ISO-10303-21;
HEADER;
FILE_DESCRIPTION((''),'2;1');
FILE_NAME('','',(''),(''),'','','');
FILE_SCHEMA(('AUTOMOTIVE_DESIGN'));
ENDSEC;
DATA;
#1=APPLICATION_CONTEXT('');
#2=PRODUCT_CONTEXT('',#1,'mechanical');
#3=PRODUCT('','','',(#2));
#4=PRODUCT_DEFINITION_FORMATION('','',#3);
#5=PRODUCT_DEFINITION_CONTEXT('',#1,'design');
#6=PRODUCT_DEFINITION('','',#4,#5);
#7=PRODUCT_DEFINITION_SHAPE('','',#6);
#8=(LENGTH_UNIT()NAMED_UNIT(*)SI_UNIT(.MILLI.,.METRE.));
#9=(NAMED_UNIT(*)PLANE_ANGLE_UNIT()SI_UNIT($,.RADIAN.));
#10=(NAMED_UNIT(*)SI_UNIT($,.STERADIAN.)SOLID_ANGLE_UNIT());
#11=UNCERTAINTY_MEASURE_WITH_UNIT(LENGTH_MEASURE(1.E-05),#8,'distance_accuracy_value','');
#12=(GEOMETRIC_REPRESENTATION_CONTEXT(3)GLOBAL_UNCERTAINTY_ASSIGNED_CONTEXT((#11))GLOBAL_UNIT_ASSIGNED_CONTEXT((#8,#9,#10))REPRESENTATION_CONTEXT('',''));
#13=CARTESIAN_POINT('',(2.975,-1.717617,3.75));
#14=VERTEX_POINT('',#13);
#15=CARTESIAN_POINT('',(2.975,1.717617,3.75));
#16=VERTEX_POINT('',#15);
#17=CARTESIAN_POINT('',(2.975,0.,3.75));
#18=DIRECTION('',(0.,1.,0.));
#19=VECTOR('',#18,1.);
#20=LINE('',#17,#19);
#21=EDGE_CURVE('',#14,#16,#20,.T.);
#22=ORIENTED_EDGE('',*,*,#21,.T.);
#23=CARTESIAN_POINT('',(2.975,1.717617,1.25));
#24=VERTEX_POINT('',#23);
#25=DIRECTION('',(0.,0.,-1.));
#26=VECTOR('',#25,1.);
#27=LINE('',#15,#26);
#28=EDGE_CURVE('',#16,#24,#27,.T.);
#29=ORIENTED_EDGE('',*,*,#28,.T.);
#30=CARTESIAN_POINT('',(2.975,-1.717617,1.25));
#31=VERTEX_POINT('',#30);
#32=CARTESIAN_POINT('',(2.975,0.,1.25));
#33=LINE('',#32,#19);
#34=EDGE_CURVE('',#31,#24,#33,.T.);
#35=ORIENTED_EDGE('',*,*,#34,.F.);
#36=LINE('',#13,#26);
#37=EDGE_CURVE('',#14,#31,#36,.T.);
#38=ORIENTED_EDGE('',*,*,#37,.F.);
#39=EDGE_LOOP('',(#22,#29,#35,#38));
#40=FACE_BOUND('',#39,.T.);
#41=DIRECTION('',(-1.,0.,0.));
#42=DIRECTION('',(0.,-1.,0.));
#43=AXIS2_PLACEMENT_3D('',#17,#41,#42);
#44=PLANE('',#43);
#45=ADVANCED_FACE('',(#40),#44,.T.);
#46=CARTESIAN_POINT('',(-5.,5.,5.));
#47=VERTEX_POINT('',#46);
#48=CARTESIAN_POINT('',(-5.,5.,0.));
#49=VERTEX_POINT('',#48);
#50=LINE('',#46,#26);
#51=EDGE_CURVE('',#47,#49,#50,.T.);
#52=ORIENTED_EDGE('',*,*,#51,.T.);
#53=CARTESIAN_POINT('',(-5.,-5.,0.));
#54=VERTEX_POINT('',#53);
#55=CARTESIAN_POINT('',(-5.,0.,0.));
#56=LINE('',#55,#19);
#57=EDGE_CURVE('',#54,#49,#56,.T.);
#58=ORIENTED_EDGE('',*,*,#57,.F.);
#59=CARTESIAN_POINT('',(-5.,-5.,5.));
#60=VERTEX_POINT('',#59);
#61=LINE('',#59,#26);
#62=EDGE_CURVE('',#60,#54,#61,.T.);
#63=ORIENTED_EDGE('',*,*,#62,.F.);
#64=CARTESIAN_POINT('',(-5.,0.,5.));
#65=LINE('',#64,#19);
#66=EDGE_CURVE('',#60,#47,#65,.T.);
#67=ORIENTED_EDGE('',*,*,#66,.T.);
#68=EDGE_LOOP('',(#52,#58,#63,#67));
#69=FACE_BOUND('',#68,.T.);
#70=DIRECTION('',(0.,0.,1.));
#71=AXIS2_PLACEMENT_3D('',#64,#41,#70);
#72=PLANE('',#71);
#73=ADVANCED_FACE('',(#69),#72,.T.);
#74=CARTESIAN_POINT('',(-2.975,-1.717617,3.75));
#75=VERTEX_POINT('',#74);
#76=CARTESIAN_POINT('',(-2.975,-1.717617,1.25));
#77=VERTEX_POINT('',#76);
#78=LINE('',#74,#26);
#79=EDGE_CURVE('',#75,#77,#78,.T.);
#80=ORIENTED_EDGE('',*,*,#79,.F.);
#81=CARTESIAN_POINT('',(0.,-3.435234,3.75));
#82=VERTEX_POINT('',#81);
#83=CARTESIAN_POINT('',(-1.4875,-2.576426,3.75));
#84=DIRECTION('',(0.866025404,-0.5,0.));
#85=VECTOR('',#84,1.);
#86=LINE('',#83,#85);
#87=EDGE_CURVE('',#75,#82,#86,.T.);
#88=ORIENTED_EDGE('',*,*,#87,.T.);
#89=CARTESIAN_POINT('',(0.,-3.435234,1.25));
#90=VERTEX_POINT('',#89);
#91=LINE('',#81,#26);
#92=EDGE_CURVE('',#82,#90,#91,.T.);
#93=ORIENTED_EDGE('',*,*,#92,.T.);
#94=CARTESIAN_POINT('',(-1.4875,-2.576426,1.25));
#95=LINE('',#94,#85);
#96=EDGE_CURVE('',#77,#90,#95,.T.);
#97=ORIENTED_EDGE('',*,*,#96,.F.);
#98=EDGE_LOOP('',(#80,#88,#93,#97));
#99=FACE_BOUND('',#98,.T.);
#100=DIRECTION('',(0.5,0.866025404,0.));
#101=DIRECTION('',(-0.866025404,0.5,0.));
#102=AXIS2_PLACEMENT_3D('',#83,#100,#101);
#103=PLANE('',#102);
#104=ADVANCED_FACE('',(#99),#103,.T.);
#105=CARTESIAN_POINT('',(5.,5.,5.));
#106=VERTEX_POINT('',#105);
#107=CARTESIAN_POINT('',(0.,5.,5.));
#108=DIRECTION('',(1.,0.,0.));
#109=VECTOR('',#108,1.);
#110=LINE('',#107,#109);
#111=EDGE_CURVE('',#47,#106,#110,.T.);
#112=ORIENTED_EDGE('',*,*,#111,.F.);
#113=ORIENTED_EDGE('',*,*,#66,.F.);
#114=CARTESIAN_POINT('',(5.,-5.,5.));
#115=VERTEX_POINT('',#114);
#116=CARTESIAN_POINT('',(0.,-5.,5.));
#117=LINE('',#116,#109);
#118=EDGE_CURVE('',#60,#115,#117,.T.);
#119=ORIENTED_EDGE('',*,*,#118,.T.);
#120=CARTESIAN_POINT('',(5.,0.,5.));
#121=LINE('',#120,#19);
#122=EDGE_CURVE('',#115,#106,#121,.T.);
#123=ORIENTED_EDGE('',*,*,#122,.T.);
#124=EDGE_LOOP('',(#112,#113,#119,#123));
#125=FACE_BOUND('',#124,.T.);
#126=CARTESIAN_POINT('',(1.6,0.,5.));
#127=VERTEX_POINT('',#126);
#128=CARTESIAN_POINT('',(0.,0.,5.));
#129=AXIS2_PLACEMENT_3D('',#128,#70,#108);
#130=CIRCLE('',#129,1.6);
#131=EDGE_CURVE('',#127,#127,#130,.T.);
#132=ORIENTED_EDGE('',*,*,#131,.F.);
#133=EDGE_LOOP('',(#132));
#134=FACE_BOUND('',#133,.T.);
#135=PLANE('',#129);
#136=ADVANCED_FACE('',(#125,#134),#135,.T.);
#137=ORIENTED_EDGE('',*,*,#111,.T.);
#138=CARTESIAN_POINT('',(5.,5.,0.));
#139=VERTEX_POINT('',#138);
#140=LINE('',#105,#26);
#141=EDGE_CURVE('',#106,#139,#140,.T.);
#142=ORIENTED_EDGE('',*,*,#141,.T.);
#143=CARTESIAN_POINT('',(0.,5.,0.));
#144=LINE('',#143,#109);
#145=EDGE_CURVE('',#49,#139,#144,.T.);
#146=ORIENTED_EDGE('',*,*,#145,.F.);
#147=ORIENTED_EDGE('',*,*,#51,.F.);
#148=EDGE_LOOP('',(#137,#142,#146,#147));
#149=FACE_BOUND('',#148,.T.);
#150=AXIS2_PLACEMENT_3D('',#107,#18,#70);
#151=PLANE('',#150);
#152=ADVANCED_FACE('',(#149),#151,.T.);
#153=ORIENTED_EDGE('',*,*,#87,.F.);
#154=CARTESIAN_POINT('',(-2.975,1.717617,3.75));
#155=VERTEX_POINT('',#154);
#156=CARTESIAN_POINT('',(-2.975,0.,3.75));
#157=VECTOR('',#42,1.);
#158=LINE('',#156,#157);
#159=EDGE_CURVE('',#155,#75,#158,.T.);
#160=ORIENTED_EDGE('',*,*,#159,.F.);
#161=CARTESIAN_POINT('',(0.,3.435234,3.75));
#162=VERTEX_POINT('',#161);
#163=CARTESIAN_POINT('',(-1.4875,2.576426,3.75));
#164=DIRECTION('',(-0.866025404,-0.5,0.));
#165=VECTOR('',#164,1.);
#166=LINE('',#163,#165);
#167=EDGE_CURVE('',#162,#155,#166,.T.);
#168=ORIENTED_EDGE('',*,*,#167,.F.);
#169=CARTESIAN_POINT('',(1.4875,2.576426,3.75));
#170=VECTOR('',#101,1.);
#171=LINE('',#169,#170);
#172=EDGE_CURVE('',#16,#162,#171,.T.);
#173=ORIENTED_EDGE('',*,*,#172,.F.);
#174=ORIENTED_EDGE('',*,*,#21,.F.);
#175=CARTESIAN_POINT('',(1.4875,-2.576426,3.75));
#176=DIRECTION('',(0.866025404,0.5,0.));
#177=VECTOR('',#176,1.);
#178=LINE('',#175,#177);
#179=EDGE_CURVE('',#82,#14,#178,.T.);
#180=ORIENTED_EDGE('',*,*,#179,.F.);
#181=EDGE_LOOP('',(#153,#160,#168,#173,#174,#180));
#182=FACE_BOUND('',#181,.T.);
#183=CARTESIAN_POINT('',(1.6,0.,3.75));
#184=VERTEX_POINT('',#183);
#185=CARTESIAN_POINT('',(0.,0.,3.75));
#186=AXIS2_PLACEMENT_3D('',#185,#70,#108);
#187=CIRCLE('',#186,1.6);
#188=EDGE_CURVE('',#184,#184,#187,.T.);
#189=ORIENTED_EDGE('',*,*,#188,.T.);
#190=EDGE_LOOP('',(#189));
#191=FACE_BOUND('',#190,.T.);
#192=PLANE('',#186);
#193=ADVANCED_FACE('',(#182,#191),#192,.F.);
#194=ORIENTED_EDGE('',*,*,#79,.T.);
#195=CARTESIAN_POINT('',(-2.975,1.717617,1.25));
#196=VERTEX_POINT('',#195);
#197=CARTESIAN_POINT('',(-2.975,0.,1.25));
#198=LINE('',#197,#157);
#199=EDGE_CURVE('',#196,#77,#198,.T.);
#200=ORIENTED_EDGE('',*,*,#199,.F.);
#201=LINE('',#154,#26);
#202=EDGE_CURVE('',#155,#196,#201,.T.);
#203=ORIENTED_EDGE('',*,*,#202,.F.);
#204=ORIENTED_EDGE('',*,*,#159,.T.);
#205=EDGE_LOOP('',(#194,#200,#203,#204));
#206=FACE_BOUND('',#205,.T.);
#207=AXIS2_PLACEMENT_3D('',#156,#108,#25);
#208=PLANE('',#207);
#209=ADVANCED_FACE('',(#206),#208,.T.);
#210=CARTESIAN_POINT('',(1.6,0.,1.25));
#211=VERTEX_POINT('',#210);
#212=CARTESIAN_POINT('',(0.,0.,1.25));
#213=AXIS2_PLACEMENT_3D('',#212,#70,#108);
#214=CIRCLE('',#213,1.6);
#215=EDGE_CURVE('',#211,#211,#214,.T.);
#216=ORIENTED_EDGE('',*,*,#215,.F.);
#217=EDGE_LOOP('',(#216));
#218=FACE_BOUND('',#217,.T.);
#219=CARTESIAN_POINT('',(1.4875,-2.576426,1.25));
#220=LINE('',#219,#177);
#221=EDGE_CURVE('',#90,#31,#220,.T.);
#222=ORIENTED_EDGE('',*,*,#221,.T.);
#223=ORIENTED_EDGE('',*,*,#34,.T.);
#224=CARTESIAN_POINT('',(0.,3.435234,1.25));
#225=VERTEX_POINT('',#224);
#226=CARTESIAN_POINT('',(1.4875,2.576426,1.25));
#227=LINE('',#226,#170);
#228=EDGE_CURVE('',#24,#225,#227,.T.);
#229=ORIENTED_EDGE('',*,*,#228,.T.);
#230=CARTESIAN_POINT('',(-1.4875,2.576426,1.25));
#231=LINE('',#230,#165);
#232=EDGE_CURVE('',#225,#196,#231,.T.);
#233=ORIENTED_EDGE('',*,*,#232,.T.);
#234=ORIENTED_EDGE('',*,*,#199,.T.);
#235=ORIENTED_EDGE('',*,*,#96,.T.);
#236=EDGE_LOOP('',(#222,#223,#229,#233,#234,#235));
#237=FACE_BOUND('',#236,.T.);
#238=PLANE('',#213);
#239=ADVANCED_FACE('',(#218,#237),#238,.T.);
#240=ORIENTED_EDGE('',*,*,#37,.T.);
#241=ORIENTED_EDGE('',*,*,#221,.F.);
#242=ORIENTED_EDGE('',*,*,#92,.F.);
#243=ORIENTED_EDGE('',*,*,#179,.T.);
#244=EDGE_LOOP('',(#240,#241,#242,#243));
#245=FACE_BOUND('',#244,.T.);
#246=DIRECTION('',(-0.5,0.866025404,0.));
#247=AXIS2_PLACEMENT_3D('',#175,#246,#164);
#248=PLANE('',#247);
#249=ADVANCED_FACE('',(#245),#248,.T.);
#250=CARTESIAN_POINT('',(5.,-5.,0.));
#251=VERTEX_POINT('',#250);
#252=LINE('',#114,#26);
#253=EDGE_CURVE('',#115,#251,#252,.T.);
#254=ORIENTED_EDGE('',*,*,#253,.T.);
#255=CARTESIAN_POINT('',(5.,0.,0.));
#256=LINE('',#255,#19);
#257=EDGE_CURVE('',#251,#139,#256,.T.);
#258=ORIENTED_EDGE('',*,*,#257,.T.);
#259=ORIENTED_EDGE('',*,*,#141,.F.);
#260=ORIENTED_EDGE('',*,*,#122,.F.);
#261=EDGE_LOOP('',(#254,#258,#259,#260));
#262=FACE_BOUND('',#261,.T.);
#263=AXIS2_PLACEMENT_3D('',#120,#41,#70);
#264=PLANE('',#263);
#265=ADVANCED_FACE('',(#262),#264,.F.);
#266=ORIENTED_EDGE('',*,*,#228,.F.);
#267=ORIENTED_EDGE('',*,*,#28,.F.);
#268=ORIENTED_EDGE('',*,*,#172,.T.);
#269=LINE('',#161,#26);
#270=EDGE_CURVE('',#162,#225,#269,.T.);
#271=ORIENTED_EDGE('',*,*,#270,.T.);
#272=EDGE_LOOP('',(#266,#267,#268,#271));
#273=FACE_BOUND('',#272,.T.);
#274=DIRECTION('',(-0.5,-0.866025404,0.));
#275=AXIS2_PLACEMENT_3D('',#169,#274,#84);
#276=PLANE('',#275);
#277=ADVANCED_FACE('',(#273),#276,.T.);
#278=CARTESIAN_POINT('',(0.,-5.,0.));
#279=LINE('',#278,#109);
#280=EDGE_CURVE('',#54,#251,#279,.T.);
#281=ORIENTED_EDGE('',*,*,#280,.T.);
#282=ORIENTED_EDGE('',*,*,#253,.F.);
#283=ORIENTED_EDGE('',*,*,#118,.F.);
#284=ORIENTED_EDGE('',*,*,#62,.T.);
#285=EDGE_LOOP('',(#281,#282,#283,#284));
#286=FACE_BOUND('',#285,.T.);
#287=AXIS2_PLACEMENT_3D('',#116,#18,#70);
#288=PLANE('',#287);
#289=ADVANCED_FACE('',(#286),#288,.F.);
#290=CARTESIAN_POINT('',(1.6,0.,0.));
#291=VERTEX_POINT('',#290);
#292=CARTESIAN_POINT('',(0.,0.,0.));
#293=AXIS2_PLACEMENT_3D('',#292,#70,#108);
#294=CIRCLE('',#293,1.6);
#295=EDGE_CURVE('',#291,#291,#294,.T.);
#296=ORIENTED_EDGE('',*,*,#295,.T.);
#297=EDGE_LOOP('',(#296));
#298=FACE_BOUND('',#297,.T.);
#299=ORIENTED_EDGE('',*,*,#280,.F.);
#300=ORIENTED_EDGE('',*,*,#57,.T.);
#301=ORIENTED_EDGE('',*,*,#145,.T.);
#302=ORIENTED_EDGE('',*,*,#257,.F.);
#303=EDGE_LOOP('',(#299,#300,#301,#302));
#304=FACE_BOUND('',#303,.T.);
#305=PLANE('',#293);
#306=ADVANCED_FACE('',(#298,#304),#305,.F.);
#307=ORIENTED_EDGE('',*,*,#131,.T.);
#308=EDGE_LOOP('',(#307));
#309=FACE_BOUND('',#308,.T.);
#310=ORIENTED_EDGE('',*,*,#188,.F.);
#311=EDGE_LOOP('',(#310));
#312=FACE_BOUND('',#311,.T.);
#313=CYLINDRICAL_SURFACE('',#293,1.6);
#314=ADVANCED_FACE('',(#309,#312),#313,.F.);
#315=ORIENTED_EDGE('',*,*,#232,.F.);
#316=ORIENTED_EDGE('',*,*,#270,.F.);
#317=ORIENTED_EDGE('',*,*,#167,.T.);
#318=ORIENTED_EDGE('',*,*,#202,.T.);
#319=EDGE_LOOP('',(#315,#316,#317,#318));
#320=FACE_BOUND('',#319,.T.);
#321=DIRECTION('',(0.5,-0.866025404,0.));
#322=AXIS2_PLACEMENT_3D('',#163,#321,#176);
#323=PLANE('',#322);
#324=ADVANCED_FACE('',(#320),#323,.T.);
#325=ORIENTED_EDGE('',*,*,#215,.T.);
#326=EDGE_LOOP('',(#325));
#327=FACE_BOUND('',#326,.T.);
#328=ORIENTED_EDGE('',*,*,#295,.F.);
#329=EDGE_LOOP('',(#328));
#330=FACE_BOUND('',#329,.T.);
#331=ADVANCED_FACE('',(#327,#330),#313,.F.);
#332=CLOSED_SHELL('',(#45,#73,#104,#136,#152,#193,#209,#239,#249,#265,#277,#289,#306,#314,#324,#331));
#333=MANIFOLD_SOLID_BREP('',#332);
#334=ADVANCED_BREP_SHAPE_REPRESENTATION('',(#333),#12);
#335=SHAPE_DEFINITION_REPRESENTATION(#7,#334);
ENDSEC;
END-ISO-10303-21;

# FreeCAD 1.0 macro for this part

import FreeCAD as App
import Part
import Sketcher
from FreeCAD import Vector
Q = App.Units.Quantity

doc = App.newDocument("Part")
body = doc.addObject("PartDesign::Body", "Body")

# Sketch on XY plane
sketch1 = body.newObject("Sketcher::SketchObject", "Sketch")
sketch1.AttachmentSupport = (doc.getObject("XY_Plane"), [""])
sketch1.MapMode = "FlatFace"
sketch1.addGeometry([
    Part.LineSegment(Vector(-5, 5, 0), Vector(-5, -5, 0)),
    Part.LineSegment(Vector(-5, -5, 0), Vector(5, -5, 0)),
    Part.LineSegment(Vector(5, -5, 0), Vector(5, 5, 0)),
    Part.LineSegment(Vector(5, 5, 0), Vector(-5, 5, 0)),
], False)
sketch1.addConstraint([
    Sketcher.Constraint("Coincident", 0, 2, 1, 1),
    Sketcher.Constraint("Coincident", 1, 2, 2, 1),
    Sketcher.Constraint("Coincident", 2, 2, 3, 1),
    Sketcher.Constraint("Coincident", 3, 2, 0, 1),
    Sketcher.Constraint("Vertical", 0),
    Sketcher.Constraint("Horizontal", 1),
    Sketcher.Constraint("Vertical", 2),
    Sketcher.Constraint("Horizontal", 3),
    Sketcher.Constraint("Symmetric", 0, 2, 2, 2, -1, 1),
    Sketcher.Constraint("Equal", 3, 0),
    Sketcher.Constraint("DistanceX", 1, 1, 1, 2, Q("10 mm")),
])
pad1 = body.newObject("PartDesign::Pad", "Pad")
pad1.Profile = sketch1
pad1.Length = 5

# Sketch on XY plane
sketch2 = body.newObject("Sketcher::SketchObject", "Sketch001")
sketch2.AttachmentSupport = (doc.getObject("XY_Plane"), [""])
sketch2.MapMode = "FlatFace"
sketch2.AttachmentOffset = App.Placement(Vector(0, 0, 1.25), App.Rotation())
sketch2.addGeometry([
    Part.LineSegment(Vector(3, -1.7, 0), Vector(3, 1.7, 0)),  # 0
    Part.LineSegment(Vector(3, 1.7, 0), Vector(0, 3.4, 0)),  # 1
    Part.LineSegment(Vector(0, 3.4, 0), Vector(-3, 1.7, 0)),  # 2
    Part.LineSegment(Vector(-3, 1.7, 0), Vector(-3, -1.7, 0)),  # 3
    Part.LineSegment(Vector(-3, -1.7, 0), Vector(0, -3.4, 0)),  # 4
    Part.LineSegment(Vector(0, -3.4, 0), Vector(3, -1.7, 0)),  # 5
], False)
sketch2.addConstraint([
    Sketcher.Constraint("Coincident", 0, 2, 1, 1),
    Sketcher.Constraint("Coincident", 1, 2, 2, 1),
    Sketcher.Constraint("Coincident", 2, 2, 3, 1),
    Sketcher.Constraint("Coincident", 3, 2, 4, 1),
    Sketcher.Constraint("Coincident", 4, 2, 5, 1),
    Sketcher.Constraint("Coincident", 5, 2, 0, 1),
    Sketcher.Constraint("Vertical", 0),
    Sketcher.Constraint("Vertical", 3),
    Sketcher.Constraint("Symmetric", 0, 2, 3, 2, -1, 1),
    Sketcher.Constraint("Symmetric", 1, 2, 4, 2, -1, 1),
    Sketcher.Constraint("PointOnObject", 1, 2, -2),
    Sketcher.Constraint("Parallel", 2, 5),
    Sketcher.Constraint("Horizontal", 0, 2, 2, 2),
    Sketcher.Constraint("Angle", 1, Q("150 deg")),
    Sketcher.Constraint("DistanceX", 2, 2, 0, 2, Q("5.95 mm")),
    Sketcher.Constraint("DistanceY", 0, 1, 0, 2, Q("3.435234 mm")),
])
pocket1 = body.newObject("PartDesign::Pocket", "Pocket")
pocket1.Profile = sketch2
pocket1.Length = 2.5
pocket1.Reversed = True

# Sketch on XY plane
sketch3 = body.newObject("Sketcher::SketchObject", "Sketch002")
sketch3.AttachmentSupport = (doc.getObject("XY_Plane"), [""])
sketch3.MapMode = "FlatFace"
sketch3.AttachmentOffset = App.Placement(Vector(0, 0, 5), App.Rotation())
sketch3.addGeometry(Part.Circle(Vector(0, 0, 0), Vector(0, 0, 1), 1.6), False)
sketch3.addConstraint([
    Sketcher.Constraint("Coincident", 0, 3, -1, 1),
    Sketcher.Constraint("Diameter", 0, Q("3.2 mm")),
])
pocket2 = body.newObject("PartDesign::Pocket", "Pocket001")
pocket2.Profile = sketch3
pocket2.Type = "ThroughAll"

doc.recompute()
